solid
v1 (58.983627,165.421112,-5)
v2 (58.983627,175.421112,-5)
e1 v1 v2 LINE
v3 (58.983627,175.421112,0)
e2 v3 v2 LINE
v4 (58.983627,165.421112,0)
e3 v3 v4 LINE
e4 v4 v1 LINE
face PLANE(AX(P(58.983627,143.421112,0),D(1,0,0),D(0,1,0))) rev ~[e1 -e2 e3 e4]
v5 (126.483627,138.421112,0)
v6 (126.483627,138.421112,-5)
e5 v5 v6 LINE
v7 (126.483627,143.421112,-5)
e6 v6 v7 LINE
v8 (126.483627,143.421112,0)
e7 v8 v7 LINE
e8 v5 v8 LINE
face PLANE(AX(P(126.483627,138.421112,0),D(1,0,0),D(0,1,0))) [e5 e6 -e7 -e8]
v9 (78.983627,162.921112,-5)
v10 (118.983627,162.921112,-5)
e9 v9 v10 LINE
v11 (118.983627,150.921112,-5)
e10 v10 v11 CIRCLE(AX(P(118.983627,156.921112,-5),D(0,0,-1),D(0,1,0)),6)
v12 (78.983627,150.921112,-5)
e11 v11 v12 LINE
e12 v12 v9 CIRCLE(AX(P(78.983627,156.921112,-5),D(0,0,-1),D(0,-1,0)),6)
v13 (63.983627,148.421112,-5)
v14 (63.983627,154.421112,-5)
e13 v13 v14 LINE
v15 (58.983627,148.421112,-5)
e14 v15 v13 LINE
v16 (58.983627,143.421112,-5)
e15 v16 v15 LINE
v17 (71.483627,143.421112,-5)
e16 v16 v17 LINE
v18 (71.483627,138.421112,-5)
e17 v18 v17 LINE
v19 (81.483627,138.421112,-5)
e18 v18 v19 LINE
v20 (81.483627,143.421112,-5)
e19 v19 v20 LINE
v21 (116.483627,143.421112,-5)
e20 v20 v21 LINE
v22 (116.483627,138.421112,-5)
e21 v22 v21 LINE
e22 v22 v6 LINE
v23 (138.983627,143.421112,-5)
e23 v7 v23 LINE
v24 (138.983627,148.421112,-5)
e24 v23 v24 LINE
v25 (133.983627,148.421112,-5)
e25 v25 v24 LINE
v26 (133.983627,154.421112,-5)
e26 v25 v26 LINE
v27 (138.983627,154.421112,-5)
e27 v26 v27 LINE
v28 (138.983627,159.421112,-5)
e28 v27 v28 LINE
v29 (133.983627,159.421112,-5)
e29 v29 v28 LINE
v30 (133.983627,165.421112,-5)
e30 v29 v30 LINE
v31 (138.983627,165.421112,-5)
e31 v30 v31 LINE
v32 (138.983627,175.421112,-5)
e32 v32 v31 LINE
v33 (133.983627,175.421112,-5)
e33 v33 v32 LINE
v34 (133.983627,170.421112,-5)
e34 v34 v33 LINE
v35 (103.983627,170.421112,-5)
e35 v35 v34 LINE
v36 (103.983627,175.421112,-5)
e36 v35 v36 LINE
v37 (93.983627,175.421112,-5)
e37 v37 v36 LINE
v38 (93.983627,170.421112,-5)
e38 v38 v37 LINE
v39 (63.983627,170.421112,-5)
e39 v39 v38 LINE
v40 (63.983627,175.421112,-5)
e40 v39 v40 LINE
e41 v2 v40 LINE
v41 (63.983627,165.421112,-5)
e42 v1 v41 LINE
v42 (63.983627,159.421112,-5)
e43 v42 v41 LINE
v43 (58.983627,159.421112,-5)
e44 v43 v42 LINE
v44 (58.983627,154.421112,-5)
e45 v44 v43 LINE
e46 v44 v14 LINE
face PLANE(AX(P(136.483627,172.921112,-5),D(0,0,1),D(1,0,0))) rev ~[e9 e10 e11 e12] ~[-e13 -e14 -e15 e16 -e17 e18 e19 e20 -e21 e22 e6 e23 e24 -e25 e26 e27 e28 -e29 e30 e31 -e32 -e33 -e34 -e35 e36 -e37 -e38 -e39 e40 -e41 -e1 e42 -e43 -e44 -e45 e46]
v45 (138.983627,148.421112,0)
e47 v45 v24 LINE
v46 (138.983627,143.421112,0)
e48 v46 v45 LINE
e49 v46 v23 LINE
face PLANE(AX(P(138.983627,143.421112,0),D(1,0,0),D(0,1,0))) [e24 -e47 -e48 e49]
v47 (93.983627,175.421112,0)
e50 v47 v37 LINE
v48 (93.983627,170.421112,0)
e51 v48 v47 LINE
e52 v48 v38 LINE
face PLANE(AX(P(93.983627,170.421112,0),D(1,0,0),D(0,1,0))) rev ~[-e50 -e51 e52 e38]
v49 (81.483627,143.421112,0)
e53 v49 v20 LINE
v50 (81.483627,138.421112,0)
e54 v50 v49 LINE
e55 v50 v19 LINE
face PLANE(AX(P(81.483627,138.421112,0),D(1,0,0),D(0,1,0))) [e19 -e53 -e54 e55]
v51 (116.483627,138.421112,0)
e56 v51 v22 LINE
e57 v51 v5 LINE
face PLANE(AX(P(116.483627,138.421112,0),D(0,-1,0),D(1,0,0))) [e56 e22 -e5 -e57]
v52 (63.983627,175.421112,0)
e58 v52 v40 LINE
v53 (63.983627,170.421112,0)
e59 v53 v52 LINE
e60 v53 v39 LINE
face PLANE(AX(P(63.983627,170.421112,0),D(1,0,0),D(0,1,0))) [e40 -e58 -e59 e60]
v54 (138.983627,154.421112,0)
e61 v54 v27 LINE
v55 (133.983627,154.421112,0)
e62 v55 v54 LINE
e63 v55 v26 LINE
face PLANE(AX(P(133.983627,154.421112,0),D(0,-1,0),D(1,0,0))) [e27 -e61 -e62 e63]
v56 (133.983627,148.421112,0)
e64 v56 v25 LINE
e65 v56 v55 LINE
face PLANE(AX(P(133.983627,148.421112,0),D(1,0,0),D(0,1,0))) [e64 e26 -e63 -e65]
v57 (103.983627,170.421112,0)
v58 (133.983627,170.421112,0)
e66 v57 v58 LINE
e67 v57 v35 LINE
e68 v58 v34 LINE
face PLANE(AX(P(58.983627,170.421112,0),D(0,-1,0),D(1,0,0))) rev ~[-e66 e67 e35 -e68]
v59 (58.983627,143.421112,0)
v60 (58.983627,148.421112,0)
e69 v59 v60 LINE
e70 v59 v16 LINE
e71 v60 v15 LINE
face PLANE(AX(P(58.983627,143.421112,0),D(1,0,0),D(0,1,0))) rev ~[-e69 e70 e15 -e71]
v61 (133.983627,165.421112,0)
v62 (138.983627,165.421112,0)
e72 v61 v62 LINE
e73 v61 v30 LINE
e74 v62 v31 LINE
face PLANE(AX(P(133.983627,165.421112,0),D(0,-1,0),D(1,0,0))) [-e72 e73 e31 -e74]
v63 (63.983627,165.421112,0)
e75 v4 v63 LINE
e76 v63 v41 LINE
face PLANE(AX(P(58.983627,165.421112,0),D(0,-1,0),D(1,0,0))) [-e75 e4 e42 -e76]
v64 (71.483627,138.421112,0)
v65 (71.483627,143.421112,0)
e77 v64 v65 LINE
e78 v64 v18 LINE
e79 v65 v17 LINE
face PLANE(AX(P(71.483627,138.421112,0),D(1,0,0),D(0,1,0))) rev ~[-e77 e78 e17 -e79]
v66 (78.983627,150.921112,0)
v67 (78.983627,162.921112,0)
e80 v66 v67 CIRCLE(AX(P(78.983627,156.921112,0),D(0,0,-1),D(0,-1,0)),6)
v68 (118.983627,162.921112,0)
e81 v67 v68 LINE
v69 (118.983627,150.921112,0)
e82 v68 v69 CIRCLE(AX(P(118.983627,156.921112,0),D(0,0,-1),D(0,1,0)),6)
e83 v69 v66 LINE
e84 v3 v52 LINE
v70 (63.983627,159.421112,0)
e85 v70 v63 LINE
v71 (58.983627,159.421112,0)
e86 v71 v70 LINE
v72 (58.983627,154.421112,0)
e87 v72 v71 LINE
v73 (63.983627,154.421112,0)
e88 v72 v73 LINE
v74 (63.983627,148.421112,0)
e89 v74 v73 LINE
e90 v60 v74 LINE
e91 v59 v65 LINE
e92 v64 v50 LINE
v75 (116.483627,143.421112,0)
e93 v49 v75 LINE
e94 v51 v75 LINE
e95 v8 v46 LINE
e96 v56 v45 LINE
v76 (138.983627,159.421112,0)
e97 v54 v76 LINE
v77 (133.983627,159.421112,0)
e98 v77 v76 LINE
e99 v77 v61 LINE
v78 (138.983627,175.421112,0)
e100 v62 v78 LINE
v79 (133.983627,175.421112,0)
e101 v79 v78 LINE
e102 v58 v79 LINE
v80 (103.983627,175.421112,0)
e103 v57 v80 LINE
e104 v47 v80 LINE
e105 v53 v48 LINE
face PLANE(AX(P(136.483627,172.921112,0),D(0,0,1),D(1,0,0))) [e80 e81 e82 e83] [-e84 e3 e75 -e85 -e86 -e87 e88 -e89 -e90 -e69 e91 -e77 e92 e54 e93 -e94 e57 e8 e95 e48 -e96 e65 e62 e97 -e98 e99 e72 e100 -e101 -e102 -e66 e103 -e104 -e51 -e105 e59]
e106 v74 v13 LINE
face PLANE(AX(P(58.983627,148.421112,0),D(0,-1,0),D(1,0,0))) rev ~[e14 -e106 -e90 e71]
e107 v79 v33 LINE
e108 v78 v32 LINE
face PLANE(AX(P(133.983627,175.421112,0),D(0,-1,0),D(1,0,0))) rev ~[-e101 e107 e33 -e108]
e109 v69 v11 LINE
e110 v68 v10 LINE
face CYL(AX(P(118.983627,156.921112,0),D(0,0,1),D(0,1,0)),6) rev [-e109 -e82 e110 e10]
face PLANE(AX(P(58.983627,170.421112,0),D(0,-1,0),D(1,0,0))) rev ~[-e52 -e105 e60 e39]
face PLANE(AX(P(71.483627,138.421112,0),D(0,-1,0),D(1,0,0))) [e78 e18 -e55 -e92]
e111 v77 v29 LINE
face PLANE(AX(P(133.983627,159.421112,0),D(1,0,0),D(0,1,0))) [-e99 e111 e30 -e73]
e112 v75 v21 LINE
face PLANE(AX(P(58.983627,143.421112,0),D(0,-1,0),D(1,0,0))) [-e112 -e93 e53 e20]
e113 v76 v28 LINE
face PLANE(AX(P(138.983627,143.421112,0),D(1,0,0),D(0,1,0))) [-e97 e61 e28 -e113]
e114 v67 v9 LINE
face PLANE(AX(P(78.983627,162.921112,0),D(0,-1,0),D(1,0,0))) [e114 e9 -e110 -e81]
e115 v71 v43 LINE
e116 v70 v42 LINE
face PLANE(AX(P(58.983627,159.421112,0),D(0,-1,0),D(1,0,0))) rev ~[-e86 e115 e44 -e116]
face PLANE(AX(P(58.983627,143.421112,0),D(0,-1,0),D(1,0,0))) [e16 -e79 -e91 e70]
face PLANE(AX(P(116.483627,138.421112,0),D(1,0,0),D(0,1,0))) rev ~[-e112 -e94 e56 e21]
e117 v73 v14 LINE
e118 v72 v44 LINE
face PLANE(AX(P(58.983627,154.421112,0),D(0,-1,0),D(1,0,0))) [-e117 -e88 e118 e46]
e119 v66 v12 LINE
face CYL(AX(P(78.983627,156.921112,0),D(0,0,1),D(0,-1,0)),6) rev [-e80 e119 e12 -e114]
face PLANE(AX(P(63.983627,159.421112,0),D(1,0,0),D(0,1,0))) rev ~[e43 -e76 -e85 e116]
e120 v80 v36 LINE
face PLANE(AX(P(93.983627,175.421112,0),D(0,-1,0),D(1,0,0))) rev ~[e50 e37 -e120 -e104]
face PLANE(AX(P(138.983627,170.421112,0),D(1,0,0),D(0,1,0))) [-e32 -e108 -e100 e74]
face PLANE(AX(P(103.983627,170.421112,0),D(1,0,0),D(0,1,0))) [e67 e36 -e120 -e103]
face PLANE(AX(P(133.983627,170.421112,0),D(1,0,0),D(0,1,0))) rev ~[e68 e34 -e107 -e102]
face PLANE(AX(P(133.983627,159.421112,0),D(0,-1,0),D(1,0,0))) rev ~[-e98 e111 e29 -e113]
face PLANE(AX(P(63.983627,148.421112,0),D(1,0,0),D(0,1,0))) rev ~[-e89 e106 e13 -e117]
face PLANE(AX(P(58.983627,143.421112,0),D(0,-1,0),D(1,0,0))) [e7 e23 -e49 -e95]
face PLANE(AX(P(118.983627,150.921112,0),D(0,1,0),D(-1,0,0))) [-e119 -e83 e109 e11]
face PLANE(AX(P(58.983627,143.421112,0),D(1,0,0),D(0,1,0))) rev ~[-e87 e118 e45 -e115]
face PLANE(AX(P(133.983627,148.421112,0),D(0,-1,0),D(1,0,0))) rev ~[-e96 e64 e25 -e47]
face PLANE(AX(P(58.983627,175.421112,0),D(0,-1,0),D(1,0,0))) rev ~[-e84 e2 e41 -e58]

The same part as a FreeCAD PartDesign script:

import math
import FreeCAD as App
import Part
import Sketcher
from FreeCAD import Vector
Q = App.Units.Quantity

doc = App.newDocument("Part")
body = doc.addObject("PartDesign::Body", "Body")

# Sketch on XY plane
sketch1 = body.newObject("Sketcher::SketchObject", "Sketch")
sketch1.AttachmentSupport = (doc.getObject("XY_Plane"), [""])
sketch1.MapMode = "FlatFace"
sketch1.addGeometry(Part.LineSegment(Vector(59, 170, 0), Vector(59, 143, 0)), False)
sketch1.addGeometry(Part.LineSegment(Vector(59, 143, 0), Vector(139, 143, 0)), False)
sketch1.addGeometry(Part.LineSegment(Vector(139, 143, 0), Vector(139, 170, 0)), False)
sketch1.addGeometry(Part.LineSegment(Vector(139, 170, 0), Vector(59, 170, 0)), False)
sketch1.addConstraint(Sketcher.Constraint("Coincident", 0, 2, 1, 1))
sketch1.addConstraint(Sketcher.Constraint("Coincident", 1, 2, 2, 1))
sketch1.addConstraint(Sketcher.Constraint("Coincident", 2, 2, 3, 1))
sketch1.addConstraint(Sketcher.Constraint("Coincident", 3, 2, 0, 1))
sketch1.addConstraint(Sketcher.Constraint("Vertical", 0))
sketch1.addConstraint(Sketcher.Constraint("Horizontal", 1))
sketch1.addConstraint(Sketcher.Constraint("Vertical", 2))
sketch1.addConstraint(Sketcher.Constraint("Horizontal", 3))
sketch1.addConstraint(Sketcher.Constraint("DistanceX", 1, 1, 1, 2, Q("80 mm")))
sketch1.addConstraint(Sketcher.Constraint("DistanceY", 0, 2, 0, 1, Q("27 mm")))
sketch1.addConstraint(Sketcher.Constraint("DistanceY", -1, 1, 0, 2, Q("143.421112 mm")))
sketch1.addConstraint(Sketcher.Constraint("DistanceX", -1, 1, 0, 2, Q("58.983627 mm")))
pad1 = body.newObject("PartDesign::Pad", "Pad")
pad1.Profile = sketch1
pad1.Length = 5
pad1.Reversed = True

# Sketch on XY plane
sketch2 = body.newObject("Sketcher::SketchObject", "Sketch001")
sketch2.AttachmentSupport = (doc.getObject("XY_Plane"), [""])
sketch2.MapMode = "FlatFace"
sketch2.addGeometry(Part.LineSegment(Vector(59, 165, 0), Vector(59, 159, 0)), False)
sketch2.addGeometry(Part.LineSegment(Vector(59, 159, 0), Vector(64, 159, 0)), False)
sketch2.addGeometry(Part.LineSegment(Vector(64, 159, 0), Vector(64, 165, 0)), False)
sketch2.addGeometry(Part.LineSegment(Vector(64, 165, 0), Vector(59, 165, 0)), False)
sketch2.addGeometry(Part.LineSegment(Vector(59, 154, 0), Vector(59, 148, 0)), False)
sketch2.addGeometry(Part.LineSegment(Vector(59, 148, 0), Vector(64, 148, 0)), False)
sketch2.addGeometry(Part.LineSegment(Vector(64, 148, 0), Vector(64, 154, 0)), False)
sketch2.addGeometry(Part.LineSegment(Vector(64, 154, 0), Vector(59, 154, 0)), False)
sketch2.addGeometry(Part.LineSegment(Vector(134, 154, 0), Vector(134, 148, 0)), False)
sketch2.addGeometry(Part.LineSegment(Vector(134, 148, 0), Vector(139, 148, 0)), False)
sketch2.addGeometry(Part.LineSegment(Vector(139, 148, 0), Vector(139, 154, 0)), False)
sketch2.addGeometry(Part.LineSegment(Vector(139, 154, 0), Vector(134, 154, 0)), False)
sketch2.addGeometry(Part.LineSegment(Vector(134, 165, 0), Vector(134, 159, 0)), False)
sketch2.addGeometry(Part.LineSegment(Vector(134, 159, 0), Vector(139, 159, 0)), False)
sketch2.addGeometry(Part.LineSegment(Vector(139, 159, 0), Vector(139, 165, 0)), False)
sketch2.addGeometry(Part.LineSegment(Vector(139, 165, 0), Vector(134, 165, 0)), False)
sketch2.addGeometry(Part.LineSegment(Vector(119, 163, 0), Vector(79, 163, 0)), False)
sketch2.addGeometry(Part.ArcOfCircle(Part.Circle(Vector(79, 157, 0), Vector(0, 0, 1), 6), math.radians(90), math.radians(270)), False)
sketch2.addGeometry(Part.LineSegment(Vector(79, 151, 0), Vector(119, 151, 0)), False)
sketch2.addGeometry(Part.ArcOfCircle(Part.Circle(Vector(119, 157, 0), Vector(0, 0, 1), 6), math.radians(-90), math.radians(90)), False)
sketch2.addConstraint(Sketcher.Constraint("Coincident", 0, 2, 1, 1))
sketch2.addConstraint(Sketcher.Constraint("Coincident", 1, 2, 2, 1))
sketch2.addConstraint(Sketcher.Constraint("Coincident", 2, 2, 3, 1))
sketch2.addConstraint(Sketcher.Constraint("Coincident", 3, 2, 0, 1))
sketch2.addConstraint(Sketcher.Constraint("Coincident", 4, 2, 5, 1))
sketch2.addConstraint(Sketcher.Constraint("Coincident", 5, 2, 6, 1))
sketch2.addConstraint(Sketcher.Constraint("Coincident", 6, 2, 7, 1))
sketch2.addConstraint(Sketcher.Constraint("Coincident", 7, 2, 4, 1))
sketch2.addConstraint(Sketcher.Constraint("Coincident", 8, 2, 9, 1))
sketch2.addConstraint(Sketcher.Constraint("Coincident", 9, 2, 10, 1))
sketch2.addConstraint(Sketcher.Constraint("Coincident", 10, 2, 11, 1))
sketch2.addConstraint(Sketcher.Constraint("Coincident", 11, 2, 8, 1))
sketch2.addConstraint(Sketcher.Constraint("Coincident", 12, 2, 13, 1))
sketch2.addConstraint(Sketcher.Constraint("Coincident", 13, 2, 14, 1))
sketch2.addConstraint(Sketcher.Constraint("Coincident", 14, 2, 15, 1))
sketch2.addConstraint(Sketcher.Constraint("Coincident", 15, 2, 12, 1))
sketch2.addConstraint(Sketcher.Constraint("Tangent", 16, 2, 17, 1))
sketch2.addConstraint(Sketcher.Constraint("Tangent", 17, 2, 18, 1))
sketch2.addConstraint(Sketcher.Constraint("Tangent", 18, 2, 19, 1))
sketch2.addConstraint(Sketcher.Constraint("Tangent", 19, 2, 16, 1))
sketch2.addConstraint(Sketcher.Constraint("Vertical", 0))
sketch2.addConstraint(Sketcher.Constraint("Horizontal", 1))
sketch2.addConstraint(Sketcher.Constraint("Vertical", 2))
sketch2.addConstraint(Sketcher.Constraint("Horizontal", 3))
sketch2.addConstraint(Sketcher.Constraint("Vertical", 4))
sketch2.addConstraint(Sketcher.Constraint("Horizontal", 5))
sketch2.addConstraint(Sketcher.Constraint("Vertical", 6))
sketch2.addConstraint(Sketcher.Constraint("Horizontal", 7))
sketch2.addConstraint(Sketcher.Constraint("Vertical", 8))
sketch2.addConstraint(Sketcher.Constraint("Horizontal", 9))
sketch2.addConstraint(Sketcher.Constraint("Vertical", 10))
sketch2.addConstraint(Sketcher.Constraint("Horizontal", 11))
sketch2.addConstraint(Sketcher.Constraint("Vertical", 12))
sketch2.addConstraint(Sketcher.Constraint("Horizontal", 13))
sketch2.addConstraint(Sketcher.Constraint("Vertical", 14))
sketch2.addConstraint(Sketcher.Constraint("Horizontal", 15))
sketch2.addConstraint(Sketcher.Constraint("Horizontal", 16))
sketch2.addConstraint(Sketcher.Constraint("Horizontal", 18))
sketch2.addConstraint(Sketcher.Constraint("Horizontal", 5, 2, 8, 2))
sketch2.addConstraint(Sketcher.Constraint("Horizontal", 7, 2, 10, 2))
sketch2.addConstraint(Sketcher.Constraint("Horizontal", 1, 2, 12, 2))
sketch2.addConstraint(Sketcher.Constraint("Horizontal", 3, 2, 14, 2))
sketch2.addConstraint(Sketcher.Constraint("Vertical", 3, 2, 4, 2))
sketch2.addConstraint(Sketcher.Constraint("Vertical", 2, 2, 5, 2))
sketch2.addConstraint(Sketcher.Constraint("Vertical", 11, 2, 12, 2))
sketch2.addConstraint(Sketcher.Constraint("Vertical", 10, 2, 13, 2))
sketch2.addConstraint(Sketcher.Constraint("Equal", 7, 9))
sketch2.addConstraint(Sketcher.Constraint("Equal", 2, 4))
sketch2.addConstraint(Sketcher.Constraint("Radius", 17, Q("6 mm")))
sketch2.addConstraint(Sketcher.Constraint("DistanceX", 1, 1, 1, 2, Q("5 mm")))
sketch2.addConstraint(Sketcher.Constraint("DistanceX", 16, 2, 16, 1, Q("40 mm")))
sketch2.addConstraint(Sketcher.Constraint("DistanceY", 0, 2, 0, 1, Q("6 mm")))
sketch2.addConstraint(Sketcher.Constraint("DistanceX", 0, 2, 17, 3, Q("20 mm")))
sketch2.addConstraint(Sketcher.Constraint("DistanceY", 4, 2, 0, 2, Q("11 mm")))
sketch2.addConstraint(Sketcher.Constraint("DistanceX", 19, 3, 8, 2, Q("15 mm")))
sketch2.addConstraint(Sketcher.Constraint("DistanceY", 17, 3, 0, 2, Q("2.5 mm")))
sketch2.addConstraint(Sketcher.Constraint("DistanceY", -1, 1, 17, 3, Q("156.921112 mm")))
sketch2.addConstraint(Sketcher.Constraint("DistanceX", -1, 1, 17, 3, Q("78.983627 mm")))
pocket1 = body.newObject("PartDesign::Pocket", "Pocket")
pocket1.Profile = sketch2
pocket1.Length = 5

# Sketch on XY plane
sketch3 = body.newObject("Sketcher::SketchObject", "Sketch002")
sketch3.AttachmentSupport = (doc.getObject("XY_Plane"), [""])
sketch3.MapMode = "FlatFace"
sketch3.addGeometry(Part.LineSegment(Vector(134, 175, 0), Vector(134, 170, 0)), False)
sketch3.addGeometry(Part.LineSegment(Vector(134, 170, 0), Vector(139, 170, 0)), False)
sketch3.addGeometry(Part.LineSegment(Vector(139, 170, 0), Vector(139, 175, 0)), False)
sketch3.addGeometry(Part.LineSegment(Vector(139, 175, 0), Vector(134, 175, 0)), False)
sketch3.addGeometry(Part.LineSegment(Vector(59, 175, 0), Vector(59, 170, 0)), False)
sketch3.addGeometry(Part.LineSegment(Vector(59, 170, 0), Vector(64, 170, 0)), False)
sketch3.addGeometry(Part.LineSegment(Vector(64, 170, 0), Vector(64, 175, 0)), False)
sketch3.addGeometry(Part.LineSegment(Vector(64, 175, 0), Vector(59, 175, 0)), False)
sketch3.addGeometry(Part.LineSegment(Vector(94, 175, 0), Vector(94, 170, 0)), False)
sketch3.addGeometry(Part.LineSegment(Vector(94, 170, 0), Vector(104, 170, 0)), False)
sketch3.addGeometry(Part.LineSegment(Vector(104, 170, 0), Vector(104, 175, 0)), False)
sketch3.addGeometry(Part.LineSegment(Vector(104, 175, 0), Vector(94, 175, 0)), False)
sketch3.addGeometry(Part.LineSegment(Vector(116, 143, 0), Vector(116, 138, 0)), False)
sketch3.addGeometry(Part.LineSegment(Vector(116, 138, 0), Vector(126, 138, 0)), False)
sketch3.addGeometry(Part.LineSegment(Vector(126, 138, 0), Vector(126, 143, 0)), False)
sketch3.addGeometry(Part.LineSegment(Vector(126, 143, 0), Vector(116, 143, 0)), False)
sketch3.addGeometry(Part.LineSegment(Vector(71, 143, 0), Vector(71, 138, 0)), False)
sketch3.addGeometry(Part.LineSegment(Vector(71, 138, 0), Vector(81, 138, 0)), False)
sketch3.addGeometry(Part.LineSegment(Vector(81, 138, 0), Vector(81, 143, 0)), False)
sketch3.addGeometry(Part.LineSegment(Vector(81, 143, 0), Vector(71, 143, 0)), False)
sketch3.addConstraint(Sketcher.Constraint("Coincident", 0, 2, 1, 1))
sketch3.addConstraint(Sketcher.Constraint("Coincident", 1, 2, 2, 1))
sketch3.addConstraint(Sketcher.Constraint("Coincident", 2, 2, 3, 1))
sketch3.addConstraint(Sketcher.Constraint("Coincident", 3, 2, 0, 1))
sketch3.addConstraint(Sketcher.Constraint("Coincident", 4, 2, 5, 1))
sketch3.addConstraint(Sketcher.Constraint("Coincident", 5, 2, 6, 1))
sketch3.addConstraint(Sketcher.Constraint("Coincident", 6, 2, 7, 1))
sketch3.addConstraint(Sketcher.Constraint("Coincident", 7, 2, 4, 1))
sketch3.addConstraint(Sketcher.Constraint("Coincident", 8, 2, 9, 1))
sketch3.addConstraint(Sketcher.Constraint("Coincident", 9, 2, 10, 1))
sketch3.addConstraint(Sketcher.Constraint("Coincident", 10, 2, 11, 1))
sketch3.addConstraint(Sketcher.Constraint("Coincident", 11, 2, 8, 1))
sketch3.addConstraint(Sketcher.Constraint("Coincident", 12, 2, 13, 1))
sketch3.addConstraint(Sketcher.Constraint("Coincident", 13, 2, 14, 1))
sketch3.addConstraint(Sketcher.Constraint("Coincident", 14, 2, 15, 1))
sketch3.addConstraint(Sketcher.Constraint("Coincident", 15, 2, 12, 1))
sketch3.addConstraint(Sketcher.Constraint("Coincident", 16, 2, 17, 1))
sketch3.addConstraint(Sketcher.Constraint("Coincident", 17, 2, 18, 1))
sketch3.addConstraint(Sketcher.Constraint("Coincident", 18, 2, 19, 1))
sketch3.addConstraint(Sketcher.Constraint("Coincident", 19, 2, 16, 1))
sketch3.addConstraint(Sketcher.Constraint("Vertical", 0))
sketch3.addConstraint(Sketcher.Constraint("Horizontal", 1))
sketch3.addConstraint(Sketcher.Constraint("Vertical", 2))
sketch3.addConstraint(Sketcher.Constraint("Horizontal", 3))
sketch3.addConstraint(Sketcher.Constraint("Vertical", 4))
sketch3.addConstraint(Sketcher.Constraint("Horizontal", 5))
sketch3.addConstraint(Sketcher.Constraint("Vertical", 6))
sketch3.addConstraint(Sketcher.Constraint("Horizontal", 7))
sketch3.addConstraint(Sketcher.Constraint("Vertical", 8))
sketch3.addConstraint(Sketcher.Constraint("Horizontal", 9))
sketch3.addConstraint(Sketcher.Constraint("Vertical", 10))
sketch3.addConstraint(Sketcher.Constraint("Horizontal", 11))
sketch3.addConstraint(Sketcher.Constraint("Vertical", 12))
sketch3.addConstraint(Sketcher.Constraint("Horizontal", 13))
sketch3.addConstraint(Sketcher.Constraint("Vertical", 14))
sketch3.addConstraint(Sketcher.Constraint("Horizontal", 15))
sketch3.addConstraint(Sketcher.Constraint("Vertical", 16))
sketch3.addConstraint(Sketcher.Constraint("Horizontal", 17))
sketch3.addConstraint(Sketcher.Constraint("Vertical", 18))
sketch3.addConstraint(Sketcher.Constraint("Horizontal", 19))
sketch3.addConstraint(Sketcher.Constraint("Horizontal", 1, 2, 4, 2))
sketch3.addConstraint(Sketcher.Constraint("Horizontal", 3, 2, 6, 2))
sketch3.addConstraint(Sketcher.Constraint("Horizontal", 5, 2, 8, 2))
sketch3.addConstraint(Sketcher.Constraint("Horizontal", 7, 2, 10, 2))
sketch3.addConstraint(Sketcher.Constraint("Horizontal", 13, 2, 16, 2))
sketch3.addConstraint(Sketcher.Constraint("Horizontal", 15, 2, 18, 2))
sketch3.addConstraint(Sketcher.Constraint("Equal", 3, 5))
sketch3.addConstraint(Sketcher.Constraint("Equal", 11, 13))
sketch3.addConstraint(Sketcher.Constraint("Equal", 15, 17))
sketch3.addConstraint(Sketcher.Constraint("Equal", 7, 0))
sketch3.addConstraint(Sketcher.Constraint("Equal", 10, 12))
sketch3.addConstraint(Sketcher.Constraint("DistanceX", 1, 1, 1, 2, Q("5 mm")))
sketch3.addConstraint(Sketcher.Constraint("DistanceX", 9, 1, 9, 2, Q("10 mm")))
sketch3.addConstraint(Sketcher.Constraint("DistanceX", 4, 2, 0, 2, Q("75 mm")))
sketch3.addConstraint(Sketcher.Constraint("DistanceX", 5, 2, 8, 2, Q("30 mm")))
sketch3.addConstraint(Sketcher.Constraint("DistanceY", 12, 2, 9, 2, Q("32 mm")))
sketch3.addConstraint(Sketcher.Constraint("DistanceX", 17, 2, 12, 2, Q("35 mm")))
sketch3.addConstraint(Sketcher.Constraint("DistanceX", 9, 2, 12, 2, Q("12.5 mm")))
sketch3.addConstraint(Sketcher.Constraint("DistanceY", -1, 1, 0, 2, Q("170.421112 mm")))
sketch3.addConstraint(Sketcher.Constraint("DistanceX", -1, 1, 0, 2, Q("133.983627 mm")))
pad2 = body.newObject("PartDesign::Pad", "Pad001")
pad2.Profile = sketch3
pad2.Length = 5
pad2.Reversed = True

doc.recompute()
